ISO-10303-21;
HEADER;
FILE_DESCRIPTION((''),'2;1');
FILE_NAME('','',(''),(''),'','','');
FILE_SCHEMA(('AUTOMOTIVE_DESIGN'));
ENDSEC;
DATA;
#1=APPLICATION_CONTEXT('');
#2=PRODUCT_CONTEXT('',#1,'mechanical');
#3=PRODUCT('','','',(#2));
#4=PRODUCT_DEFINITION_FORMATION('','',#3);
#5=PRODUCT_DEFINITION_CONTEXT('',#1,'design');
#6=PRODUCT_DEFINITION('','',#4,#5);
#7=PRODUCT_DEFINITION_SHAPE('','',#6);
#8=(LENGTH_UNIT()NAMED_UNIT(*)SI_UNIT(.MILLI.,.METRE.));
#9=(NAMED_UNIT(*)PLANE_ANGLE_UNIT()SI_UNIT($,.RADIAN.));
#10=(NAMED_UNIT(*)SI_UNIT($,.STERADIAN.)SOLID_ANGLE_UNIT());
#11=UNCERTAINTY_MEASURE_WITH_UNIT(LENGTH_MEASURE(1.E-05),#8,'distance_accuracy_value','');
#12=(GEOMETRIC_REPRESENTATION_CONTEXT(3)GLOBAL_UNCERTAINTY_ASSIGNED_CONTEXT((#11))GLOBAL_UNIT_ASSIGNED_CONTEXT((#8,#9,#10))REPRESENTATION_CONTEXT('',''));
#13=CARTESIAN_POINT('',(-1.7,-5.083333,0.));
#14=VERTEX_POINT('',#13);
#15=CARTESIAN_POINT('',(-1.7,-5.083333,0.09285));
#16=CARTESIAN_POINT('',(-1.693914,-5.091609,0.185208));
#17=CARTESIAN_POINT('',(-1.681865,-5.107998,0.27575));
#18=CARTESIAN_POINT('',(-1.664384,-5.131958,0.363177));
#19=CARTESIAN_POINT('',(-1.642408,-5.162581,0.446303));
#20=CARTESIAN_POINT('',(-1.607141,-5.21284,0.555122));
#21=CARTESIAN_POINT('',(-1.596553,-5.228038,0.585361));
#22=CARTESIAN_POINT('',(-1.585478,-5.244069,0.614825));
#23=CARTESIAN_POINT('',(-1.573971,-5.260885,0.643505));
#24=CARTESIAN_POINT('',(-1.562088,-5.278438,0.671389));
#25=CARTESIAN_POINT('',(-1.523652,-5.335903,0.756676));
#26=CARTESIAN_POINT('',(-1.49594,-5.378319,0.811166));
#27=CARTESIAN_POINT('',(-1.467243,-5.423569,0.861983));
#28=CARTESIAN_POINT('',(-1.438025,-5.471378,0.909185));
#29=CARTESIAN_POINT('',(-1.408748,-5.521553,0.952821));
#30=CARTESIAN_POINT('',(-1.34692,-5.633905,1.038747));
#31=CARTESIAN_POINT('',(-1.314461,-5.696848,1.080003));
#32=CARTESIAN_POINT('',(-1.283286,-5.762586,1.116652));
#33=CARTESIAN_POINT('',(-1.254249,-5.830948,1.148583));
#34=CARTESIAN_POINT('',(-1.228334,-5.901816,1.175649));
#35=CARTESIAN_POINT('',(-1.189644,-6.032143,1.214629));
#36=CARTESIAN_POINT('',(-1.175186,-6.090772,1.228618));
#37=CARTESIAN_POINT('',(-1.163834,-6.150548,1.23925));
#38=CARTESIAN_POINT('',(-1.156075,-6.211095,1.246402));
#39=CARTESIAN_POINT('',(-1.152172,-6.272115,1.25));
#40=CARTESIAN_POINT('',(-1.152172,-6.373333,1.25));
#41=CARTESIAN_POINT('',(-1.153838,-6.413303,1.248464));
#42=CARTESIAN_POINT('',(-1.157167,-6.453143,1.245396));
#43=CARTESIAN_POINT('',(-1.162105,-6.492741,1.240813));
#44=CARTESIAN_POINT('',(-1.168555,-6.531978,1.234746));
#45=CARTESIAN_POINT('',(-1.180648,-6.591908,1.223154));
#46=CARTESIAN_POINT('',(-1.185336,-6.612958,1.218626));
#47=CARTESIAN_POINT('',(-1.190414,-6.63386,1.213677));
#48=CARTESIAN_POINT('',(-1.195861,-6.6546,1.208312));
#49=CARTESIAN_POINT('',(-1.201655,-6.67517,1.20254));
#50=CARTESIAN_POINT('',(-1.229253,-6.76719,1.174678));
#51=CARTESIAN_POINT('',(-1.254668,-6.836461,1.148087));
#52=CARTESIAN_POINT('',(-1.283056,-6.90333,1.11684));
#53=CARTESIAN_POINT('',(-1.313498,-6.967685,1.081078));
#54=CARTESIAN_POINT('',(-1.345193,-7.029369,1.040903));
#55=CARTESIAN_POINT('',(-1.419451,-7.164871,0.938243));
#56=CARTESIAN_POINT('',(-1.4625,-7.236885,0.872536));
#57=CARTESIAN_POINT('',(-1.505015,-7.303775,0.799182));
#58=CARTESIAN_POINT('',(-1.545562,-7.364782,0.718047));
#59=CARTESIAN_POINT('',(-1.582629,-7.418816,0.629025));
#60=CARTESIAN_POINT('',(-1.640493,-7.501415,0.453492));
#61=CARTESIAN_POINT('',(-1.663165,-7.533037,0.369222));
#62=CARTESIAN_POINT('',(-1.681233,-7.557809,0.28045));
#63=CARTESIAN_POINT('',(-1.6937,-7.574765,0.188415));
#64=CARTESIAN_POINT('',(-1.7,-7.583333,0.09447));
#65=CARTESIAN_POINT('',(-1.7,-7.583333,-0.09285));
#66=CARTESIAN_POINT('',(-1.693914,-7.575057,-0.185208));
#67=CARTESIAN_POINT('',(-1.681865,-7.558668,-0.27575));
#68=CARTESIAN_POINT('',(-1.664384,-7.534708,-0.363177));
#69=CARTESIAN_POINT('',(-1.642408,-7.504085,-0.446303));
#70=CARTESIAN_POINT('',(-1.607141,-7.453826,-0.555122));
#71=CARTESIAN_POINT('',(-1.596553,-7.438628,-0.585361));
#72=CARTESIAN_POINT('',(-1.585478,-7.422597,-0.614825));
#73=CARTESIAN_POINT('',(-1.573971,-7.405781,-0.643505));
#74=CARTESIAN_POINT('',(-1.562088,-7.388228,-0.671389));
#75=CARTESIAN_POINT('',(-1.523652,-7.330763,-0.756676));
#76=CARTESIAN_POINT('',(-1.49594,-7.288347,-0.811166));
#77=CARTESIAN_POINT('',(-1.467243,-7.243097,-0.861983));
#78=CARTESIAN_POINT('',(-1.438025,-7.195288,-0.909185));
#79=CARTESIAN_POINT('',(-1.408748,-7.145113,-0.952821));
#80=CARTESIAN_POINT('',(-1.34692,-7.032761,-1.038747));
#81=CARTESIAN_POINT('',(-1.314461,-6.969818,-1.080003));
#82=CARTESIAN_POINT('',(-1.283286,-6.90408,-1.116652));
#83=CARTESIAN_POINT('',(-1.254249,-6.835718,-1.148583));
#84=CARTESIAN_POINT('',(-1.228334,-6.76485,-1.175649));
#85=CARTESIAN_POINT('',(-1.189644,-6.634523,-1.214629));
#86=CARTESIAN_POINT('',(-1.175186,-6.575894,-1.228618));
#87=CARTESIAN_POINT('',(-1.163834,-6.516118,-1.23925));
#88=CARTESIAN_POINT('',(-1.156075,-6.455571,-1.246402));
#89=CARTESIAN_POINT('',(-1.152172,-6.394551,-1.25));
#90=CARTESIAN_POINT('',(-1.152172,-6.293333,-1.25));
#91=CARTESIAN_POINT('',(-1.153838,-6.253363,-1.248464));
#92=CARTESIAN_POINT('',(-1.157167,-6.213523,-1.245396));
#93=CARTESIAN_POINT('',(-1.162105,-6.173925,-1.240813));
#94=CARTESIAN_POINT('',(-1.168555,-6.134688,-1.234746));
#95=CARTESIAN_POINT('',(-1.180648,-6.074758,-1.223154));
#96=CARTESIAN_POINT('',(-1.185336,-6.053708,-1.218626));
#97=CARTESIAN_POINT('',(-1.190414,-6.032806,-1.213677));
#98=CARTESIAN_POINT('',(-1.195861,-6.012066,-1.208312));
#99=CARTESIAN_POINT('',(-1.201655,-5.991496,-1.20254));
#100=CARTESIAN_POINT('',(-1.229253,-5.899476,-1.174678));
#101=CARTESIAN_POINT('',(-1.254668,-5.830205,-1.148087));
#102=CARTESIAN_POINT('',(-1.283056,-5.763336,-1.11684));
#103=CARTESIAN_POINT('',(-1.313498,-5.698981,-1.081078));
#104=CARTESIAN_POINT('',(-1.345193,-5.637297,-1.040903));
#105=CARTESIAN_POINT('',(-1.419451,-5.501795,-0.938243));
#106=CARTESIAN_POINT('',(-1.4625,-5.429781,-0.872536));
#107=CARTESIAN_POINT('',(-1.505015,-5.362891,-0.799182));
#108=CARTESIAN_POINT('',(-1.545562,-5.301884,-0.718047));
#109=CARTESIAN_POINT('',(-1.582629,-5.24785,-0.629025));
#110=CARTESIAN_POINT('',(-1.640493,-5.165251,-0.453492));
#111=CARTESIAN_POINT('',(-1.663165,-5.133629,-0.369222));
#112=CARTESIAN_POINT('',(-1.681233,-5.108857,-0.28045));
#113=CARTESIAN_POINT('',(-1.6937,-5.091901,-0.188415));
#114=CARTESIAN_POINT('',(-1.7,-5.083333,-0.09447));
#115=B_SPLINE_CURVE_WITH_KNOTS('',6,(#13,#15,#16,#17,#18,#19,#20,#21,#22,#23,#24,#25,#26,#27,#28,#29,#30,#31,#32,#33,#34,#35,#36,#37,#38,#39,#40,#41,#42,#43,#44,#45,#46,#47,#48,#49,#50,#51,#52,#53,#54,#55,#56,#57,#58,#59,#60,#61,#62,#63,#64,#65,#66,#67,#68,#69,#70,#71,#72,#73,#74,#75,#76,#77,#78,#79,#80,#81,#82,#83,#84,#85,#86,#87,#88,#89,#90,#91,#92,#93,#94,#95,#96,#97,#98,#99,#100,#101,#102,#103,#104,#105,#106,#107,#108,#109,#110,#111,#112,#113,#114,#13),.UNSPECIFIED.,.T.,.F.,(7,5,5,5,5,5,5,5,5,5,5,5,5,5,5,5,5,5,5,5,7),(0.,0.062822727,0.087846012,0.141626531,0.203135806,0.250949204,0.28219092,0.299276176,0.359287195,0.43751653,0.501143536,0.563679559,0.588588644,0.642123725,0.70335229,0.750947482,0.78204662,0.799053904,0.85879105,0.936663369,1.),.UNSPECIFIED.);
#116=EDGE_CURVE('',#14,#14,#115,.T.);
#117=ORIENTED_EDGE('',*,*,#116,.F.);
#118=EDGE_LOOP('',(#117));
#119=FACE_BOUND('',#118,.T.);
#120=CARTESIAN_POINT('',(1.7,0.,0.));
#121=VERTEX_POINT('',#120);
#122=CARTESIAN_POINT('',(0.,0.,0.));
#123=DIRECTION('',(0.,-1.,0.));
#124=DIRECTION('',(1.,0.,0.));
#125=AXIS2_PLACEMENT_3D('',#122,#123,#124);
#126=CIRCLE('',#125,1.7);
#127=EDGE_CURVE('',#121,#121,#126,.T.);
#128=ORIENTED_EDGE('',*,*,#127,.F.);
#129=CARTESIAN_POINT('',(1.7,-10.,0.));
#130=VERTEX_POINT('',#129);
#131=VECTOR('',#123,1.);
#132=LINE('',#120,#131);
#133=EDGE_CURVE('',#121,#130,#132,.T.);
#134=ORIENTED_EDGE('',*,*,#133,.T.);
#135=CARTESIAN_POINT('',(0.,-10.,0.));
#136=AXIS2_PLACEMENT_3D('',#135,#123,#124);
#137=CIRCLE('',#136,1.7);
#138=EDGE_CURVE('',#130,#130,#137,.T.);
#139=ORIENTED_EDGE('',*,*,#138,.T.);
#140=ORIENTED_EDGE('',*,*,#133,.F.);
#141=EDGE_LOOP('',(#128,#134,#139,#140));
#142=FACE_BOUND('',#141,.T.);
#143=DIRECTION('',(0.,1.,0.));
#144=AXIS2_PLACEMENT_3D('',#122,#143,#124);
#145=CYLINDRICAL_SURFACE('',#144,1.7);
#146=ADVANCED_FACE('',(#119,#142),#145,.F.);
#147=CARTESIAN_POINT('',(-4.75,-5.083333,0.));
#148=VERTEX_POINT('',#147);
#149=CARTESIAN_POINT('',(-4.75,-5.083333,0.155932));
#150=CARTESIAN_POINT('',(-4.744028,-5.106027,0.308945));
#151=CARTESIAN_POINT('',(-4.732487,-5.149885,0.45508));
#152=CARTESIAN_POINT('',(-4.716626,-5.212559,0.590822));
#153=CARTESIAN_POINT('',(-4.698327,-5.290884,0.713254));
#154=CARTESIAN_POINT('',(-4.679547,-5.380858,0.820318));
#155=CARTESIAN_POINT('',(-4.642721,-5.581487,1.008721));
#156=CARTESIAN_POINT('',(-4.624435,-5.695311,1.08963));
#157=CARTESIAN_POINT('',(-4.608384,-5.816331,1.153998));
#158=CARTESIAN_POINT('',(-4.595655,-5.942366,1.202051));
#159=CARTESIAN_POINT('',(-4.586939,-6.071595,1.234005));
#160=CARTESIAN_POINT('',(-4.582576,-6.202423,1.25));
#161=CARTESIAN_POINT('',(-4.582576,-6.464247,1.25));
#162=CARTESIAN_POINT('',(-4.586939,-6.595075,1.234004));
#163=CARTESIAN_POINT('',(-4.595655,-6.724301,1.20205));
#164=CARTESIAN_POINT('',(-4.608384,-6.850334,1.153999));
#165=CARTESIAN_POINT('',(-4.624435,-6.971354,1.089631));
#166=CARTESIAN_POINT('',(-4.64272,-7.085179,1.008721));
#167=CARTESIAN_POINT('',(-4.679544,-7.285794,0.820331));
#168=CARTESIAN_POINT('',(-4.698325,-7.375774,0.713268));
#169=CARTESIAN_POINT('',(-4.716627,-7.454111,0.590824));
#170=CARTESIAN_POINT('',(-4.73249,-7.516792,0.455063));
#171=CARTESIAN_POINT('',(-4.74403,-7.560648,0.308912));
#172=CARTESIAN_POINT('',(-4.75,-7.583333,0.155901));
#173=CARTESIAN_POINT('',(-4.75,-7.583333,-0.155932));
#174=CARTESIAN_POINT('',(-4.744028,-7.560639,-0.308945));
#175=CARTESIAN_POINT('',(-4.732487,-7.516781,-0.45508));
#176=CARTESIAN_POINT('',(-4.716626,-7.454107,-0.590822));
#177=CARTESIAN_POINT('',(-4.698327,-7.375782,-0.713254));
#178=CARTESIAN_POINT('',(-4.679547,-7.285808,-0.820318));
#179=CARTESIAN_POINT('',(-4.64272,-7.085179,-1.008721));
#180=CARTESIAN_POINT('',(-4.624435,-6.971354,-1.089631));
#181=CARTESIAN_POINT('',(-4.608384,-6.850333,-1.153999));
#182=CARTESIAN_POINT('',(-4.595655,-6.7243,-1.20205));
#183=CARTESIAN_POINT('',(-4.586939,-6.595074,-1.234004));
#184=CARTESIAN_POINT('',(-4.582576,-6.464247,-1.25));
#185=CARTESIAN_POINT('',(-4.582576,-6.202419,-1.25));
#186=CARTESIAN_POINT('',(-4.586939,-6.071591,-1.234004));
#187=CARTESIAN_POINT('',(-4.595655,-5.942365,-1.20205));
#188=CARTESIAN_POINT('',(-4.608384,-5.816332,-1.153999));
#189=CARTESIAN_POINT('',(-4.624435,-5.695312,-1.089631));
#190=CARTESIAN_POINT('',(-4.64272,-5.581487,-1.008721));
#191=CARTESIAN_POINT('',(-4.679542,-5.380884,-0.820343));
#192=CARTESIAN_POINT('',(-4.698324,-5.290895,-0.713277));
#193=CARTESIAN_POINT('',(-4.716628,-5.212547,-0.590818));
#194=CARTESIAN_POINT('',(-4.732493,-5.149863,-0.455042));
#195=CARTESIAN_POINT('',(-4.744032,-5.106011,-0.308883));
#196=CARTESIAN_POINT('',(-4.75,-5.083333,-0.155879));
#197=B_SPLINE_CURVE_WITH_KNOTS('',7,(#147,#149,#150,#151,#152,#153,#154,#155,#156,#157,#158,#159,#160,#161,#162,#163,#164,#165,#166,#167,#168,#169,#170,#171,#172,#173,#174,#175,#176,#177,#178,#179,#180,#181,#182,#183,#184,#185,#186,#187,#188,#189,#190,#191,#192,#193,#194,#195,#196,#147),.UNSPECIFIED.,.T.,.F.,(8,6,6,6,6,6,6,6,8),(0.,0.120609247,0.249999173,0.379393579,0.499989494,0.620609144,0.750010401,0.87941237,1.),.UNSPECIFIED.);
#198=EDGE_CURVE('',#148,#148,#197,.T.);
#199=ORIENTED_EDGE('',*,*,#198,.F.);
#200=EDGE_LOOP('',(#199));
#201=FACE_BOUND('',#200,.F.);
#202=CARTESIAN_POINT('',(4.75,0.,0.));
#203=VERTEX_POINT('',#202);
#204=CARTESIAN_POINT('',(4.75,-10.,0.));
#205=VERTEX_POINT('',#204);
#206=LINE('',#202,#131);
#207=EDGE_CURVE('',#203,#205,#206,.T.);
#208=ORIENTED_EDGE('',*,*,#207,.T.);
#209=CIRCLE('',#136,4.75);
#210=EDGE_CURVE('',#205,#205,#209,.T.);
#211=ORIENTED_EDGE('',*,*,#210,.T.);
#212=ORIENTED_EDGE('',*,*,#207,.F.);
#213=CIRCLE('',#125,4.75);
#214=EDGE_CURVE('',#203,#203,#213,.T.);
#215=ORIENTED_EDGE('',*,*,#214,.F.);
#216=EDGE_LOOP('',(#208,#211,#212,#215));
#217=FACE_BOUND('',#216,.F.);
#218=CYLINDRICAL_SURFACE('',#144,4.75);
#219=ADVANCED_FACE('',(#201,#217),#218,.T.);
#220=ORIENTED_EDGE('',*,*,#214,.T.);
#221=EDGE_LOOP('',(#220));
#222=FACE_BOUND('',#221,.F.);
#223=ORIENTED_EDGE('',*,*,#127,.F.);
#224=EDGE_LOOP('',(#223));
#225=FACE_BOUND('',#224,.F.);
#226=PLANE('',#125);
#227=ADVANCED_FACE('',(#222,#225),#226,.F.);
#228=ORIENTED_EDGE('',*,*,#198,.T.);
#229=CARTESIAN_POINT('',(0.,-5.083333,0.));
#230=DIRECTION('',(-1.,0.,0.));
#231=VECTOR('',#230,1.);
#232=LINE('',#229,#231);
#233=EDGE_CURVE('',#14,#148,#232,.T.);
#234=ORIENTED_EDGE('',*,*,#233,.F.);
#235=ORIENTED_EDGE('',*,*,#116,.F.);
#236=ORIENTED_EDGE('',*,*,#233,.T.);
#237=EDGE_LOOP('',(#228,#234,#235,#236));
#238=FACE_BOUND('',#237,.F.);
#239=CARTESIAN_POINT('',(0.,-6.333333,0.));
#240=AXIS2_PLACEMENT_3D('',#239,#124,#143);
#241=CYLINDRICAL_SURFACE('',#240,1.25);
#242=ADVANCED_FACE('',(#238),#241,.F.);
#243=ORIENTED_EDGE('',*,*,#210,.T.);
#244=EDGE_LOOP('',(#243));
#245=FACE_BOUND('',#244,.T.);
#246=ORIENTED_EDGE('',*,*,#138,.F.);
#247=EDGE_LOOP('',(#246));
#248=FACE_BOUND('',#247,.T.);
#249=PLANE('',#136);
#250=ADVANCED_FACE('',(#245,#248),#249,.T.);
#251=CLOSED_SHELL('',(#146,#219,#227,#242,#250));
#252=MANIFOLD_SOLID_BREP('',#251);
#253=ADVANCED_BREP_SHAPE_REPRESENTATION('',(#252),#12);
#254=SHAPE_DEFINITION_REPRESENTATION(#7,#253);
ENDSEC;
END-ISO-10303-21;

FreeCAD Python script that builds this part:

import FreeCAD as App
import Part
import Sketcher

V = App.Vector

doc = App.newDocument("Part")
body = doc.addObject("PartDesign::Body", "Body")

# Sketch on XZ plane
sketch1 = body.newObject("Sketcher::SketchObject", "Sketch")
sketch1.AttachmentSupport = (doc.getObject("XZ_Plane"), [""])
sketch1.MapMode = "FlatFace"
sketch1.addGeometry([
    Part.Circle(V(0, 0, 0), V(0, 0, 1), 4.75),
    Part.Circle(V(0, 0, 0), V(0, 0, 1), 1.7),
], False)
sketch1.addConstraint([
    Sketcher.Constraint("Coincident", 0, 3, -1, 1),
    Sketcher.Constraint("Coincident", 1, 3, -1, 1),
    Sketcher.Constraint("Diameter", 0, 9.5),
    Sketcher.Constraint("Diameter", 1, 3.4),
])
pad1 = body.newObject("PartDesign::Pad", "Pad")
pad1.Profile = sketch1
pad1.Length = 10

# Sketch on YZ plane
sketch2 = body.newObject("Sketcher::SketchObject", "Sketch001")
sketch2.AttachmentSupport = (doc.getObject("YZ_Plane"), [""])
sketch2.MapMode = "FlatFace"
sketch2.addGeometry(Part.Circle(V(-6.333333, 0, 0), V(0, 0, 1), 1.25), False)
sketch2.addConstraint([
    Sketcher.Constraint("PointOnObject", 0, 3, -1),
    Sketcher.Constraint("Diameter", 0, 2.5),
    Sketcher.Constraint("DistanceX", 0, 3, -1, 1, 6.333333),
])
pocket1 = body.newObject("PartDesign::Pocket", "Pocket")
pocket1.Profile = sketch2
pocket1.Length = 25

doc.recompute()
